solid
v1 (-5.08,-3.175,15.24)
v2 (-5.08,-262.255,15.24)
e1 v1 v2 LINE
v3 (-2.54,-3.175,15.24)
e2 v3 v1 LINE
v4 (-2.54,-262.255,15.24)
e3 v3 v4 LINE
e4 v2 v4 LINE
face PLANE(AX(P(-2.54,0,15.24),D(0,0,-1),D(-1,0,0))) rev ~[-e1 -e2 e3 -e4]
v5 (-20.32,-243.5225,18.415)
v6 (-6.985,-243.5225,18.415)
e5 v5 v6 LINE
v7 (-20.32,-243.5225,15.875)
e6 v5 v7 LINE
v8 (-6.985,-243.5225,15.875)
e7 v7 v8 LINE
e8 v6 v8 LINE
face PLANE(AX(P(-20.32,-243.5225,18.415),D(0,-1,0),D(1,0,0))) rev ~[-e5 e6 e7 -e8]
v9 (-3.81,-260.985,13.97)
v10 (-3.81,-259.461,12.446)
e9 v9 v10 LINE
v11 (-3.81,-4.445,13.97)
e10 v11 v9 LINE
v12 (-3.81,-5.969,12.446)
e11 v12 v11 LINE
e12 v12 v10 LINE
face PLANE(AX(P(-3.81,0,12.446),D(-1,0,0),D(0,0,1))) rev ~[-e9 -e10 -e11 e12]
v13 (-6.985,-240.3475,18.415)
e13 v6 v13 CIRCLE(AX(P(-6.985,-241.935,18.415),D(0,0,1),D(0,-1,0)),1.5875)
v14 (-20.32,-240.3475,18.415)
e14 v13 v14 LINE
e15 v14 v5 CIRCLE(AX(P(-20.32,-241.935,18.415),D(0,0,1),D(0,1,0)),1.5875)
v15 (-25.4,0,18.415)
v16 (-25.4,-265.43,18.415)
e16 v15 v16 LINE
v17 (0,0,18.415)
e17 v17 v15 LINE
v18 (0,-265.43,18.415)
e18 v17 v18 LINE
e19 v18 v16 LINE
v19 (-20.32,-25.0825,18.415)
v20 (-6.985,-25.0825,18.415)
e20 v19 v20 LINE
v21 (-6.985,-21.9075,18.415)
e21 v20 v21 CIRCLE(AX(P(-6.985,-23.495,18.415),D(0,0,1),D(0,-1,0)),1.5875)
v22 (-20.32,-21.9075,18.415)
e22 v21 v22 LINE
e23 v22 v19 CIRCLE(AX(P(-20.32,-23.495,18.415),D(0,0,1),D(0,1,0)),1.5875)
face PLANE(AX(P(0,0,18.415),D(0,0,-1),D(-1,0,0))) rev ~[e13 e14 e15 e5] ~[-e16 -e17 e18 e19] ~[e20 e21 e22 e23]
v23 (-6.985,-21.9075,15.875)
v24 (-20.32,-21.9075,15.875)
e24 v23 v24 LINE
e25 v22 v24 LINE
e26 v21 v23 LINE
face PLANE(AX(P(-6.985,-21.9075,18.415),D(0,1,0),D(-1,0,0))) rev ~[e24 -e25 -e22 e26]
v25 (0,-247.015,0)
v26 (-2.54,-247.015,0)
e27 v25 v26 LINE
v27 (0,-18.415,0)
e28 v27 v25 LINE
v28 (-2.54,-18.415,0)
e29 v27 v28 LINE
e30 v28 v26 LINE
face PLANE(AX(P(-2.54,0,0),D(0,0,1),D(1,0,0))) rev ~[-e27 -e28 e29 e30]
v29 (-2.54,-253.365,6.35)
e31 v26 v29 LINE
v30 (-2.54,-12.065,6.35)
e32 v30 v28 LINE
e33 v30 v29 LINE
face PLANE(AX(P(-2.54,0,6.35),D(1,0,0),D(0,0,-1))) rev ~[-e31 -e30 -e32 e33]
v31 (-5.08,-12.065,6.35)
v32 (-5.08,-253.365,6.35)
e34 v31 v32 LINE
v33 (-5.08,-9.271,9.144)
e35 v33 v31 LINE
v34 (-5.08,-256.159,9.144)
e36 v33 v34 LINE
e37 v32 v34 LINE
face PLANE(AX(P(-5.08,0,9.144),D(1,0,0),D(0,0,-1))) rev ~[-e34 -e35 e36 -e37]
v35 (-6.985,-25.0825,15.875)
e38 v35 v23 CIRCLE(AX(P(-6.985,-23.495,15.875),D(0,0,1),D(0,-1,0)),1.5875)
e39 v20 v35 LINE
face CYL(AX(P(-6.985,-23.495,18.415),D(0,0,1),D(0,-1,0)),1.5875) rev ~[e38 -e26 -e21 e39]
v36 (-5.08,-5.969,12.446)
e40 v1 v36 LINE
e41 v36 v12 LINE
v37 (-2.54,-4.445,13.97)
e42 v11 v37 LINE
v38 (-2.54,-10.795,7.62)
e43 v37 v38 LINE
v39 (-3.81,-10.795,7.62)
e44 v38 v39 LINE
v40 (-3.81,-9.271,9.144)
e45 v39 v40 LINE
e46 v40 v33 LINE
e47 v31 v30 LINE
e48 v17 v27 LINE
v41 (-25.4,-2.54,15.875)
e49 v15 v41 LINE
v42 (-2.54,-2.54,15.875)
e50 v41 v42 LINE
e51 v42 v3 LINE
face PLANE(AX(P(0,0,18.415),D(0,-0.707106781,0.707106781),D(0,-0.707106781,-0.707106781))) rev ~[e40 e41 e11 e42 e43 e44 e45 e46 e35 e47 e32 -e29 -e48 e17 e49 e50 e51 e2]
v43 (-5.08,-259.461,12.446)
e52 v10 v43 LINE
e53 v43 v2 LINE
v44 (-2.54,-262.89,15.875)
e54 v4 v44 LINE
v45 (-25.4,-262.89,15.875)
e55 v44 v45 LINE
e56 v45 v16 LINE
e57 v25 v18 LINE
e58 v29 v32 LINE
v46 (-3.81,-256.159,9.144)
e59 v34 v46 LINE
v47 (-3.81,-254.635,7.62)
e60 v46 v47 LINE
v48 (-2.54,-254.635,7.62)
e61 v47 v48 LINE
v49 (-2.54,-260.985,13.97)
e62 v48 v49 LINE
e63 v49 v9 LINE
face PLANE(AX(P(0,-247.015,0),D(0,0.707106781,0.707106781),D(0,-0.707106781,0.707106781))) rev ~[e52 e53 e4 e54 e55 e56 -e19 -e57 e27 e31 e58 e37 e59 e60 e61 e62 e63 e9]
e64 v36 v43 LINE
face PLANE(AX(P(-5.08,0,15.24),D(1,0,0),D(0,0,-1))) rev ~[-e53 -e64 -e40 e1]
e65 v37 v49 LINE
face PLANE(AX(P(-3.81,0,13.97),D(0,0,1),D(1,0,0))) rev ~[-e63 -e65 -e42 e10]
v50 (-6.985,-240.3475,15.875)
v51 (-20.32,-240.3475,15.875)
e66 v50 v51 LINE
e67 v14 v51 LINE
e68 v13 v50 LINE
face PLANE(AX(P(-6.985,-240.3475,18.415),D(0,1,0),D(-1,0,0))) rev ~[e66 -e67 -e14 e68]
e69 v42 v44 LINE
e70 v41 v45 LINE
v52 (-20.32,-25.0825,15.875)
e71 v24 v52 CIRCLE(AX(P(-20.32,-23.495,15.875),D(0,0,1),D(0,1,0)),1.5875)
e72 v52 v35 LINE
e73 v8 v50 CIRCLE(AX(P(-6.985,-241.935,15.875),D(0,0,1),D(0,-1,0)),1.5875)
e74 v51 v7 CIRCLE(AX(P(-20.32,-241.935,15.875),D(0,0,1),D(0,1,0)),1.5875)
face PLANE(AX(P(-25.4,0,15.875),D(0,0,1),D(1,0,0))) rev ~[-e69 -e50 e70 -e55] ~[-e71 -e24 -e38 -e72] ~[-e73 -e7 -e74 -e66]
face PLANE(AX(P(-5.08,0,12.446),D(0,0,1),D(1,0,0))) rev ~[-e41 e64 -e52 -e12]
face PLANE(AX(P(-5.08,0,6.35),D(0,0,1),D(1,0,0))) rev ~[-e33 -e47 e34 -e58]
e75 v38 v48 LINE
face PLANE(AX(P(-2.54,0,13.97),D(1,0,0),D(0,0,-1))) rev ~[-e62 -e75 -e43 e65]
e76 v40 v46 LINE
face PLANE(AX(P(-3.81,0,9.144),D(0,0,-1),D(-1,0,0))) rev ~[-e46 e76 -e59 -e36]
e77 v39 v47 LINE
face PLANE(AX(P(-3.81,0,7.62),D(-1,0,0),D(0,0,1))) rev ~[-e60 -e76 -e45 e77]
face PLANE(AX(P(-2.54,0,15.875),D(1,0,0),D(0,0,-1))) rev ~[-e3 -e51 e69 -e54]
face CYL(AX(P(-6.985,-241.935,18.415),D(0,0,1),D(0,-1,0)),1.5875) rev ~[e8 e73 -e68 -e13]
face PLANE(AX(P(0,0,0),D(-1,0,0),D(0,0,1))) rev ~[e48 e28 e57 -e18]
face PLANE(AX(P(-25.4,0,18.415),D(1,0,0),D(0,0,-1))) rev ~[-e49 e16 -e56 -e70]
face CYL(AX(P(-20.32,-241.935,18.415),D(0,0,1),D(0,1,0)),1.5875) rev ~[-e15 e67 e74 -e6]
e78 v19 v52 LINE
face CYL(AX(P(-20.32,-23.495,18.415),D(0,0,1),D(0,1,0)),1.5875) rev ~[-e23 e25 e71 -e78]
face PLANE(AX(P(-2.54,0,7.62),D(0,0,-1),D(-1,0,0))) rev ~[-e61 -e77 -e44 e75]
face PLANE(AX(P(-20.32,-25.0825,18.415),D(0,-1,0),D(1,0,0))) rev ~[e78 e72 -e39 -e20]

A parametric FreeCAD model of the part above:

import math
import FreeCAD as App
import Part
import Sketcher

V = App.Vector
Q = App.Units.Quantity


def add_polygon(sketch, points):
    """Adds a closed chain of lines whose ends are joined by coincident constraints."""
    first, n = sketch.GeometryCount, len(points)
    for a, b in zip(points, points[1:] + points[:1]):
        sketch.addGeometry(Part.LineSegment(App.Vector(*a, 0), App.Vector(*b, 0)), False)
    for i in range(n):
        sketch.addConstraint(Sketcher.Constraint("Coincident", first + i, 2, first + (i + 1) % n, 1))

doc = App.newDocument("Part")
body = doc.addObject("PartDesign::Body", "Body")

# Sketch on XZ plane
sketch1 = doc.addObject("Sketcher::SketchObject", "Sketch")
body.addObject(sketch1)
sketch1.AttachmentSupport = (doc.XZ_Plane, [""])
sketch1.MapMode = "FlatFace"
add_polygon(sketch1, [(-2.5, 0), (0, 0), (0, 18.4), (-25.4, 18.4), (-25.4, 15.9), (-2.5, 15.9), (-2.5, 15.2), (-5.1, 15.2), (-5.1, 12.4), (-3.8, 12.4), (-3.8, 14), (-2.5, 14), (-2.5, 7.6), (-3.8, 7.6), (-3.8, 9.1), (-5.1, 9.1), (-5.1, 6.3), (-2.5, 6.3)])  # lines 0-17
sketch1.addConstraint([
    Sketcher.Constraint("Horizontal", 0),
    Sketcher.Constraint("Vertical", 1),
    Sketcher.Constraint("Horizontal", 2),
    Sketcher.Constraint("Vertical", 3),
    Sketcher.Constraint("Horizontal", 4),
    Sketcher.Constraint("Vertical", 5),
    Sketcher.Constraint("Horizontal", 6),
    Sketcher.Constraint("Vertical", 7),
    Sketcher.Constraint("Horizontal", 8),
    Sketcher.Constraint("Vertical", 9),
    Sketcher.Constraint("Horizontal", 10),
    Sketcher.Constraint("Vertical", 11),
    Sketcher.Constraint("Horizontal", 12),
    Sketcher.Constraint("Vertical", 13),
    Sketcher.Constraint("Horizontal", 14),
    Sketcher.Constraint("Vertical", 15),
    Sketcher.Constraint("Horizontal", 16),
    Sketcher.Constraint("Vertical", 17),
    Sketcher.Constraint("Coincident", 0, 2, -1, 1),
    Sketcher.Constraint("Vertical", 5, 2, 10, 2),
    Sketcher.Constraint("Vertical", 9, 2, 12, 2),
    Sketcher.Constraint("Vertical", 7, 2, 14, 2),
    Sketcher.Constraint("Vertical", 11, 2, 16, 2),
    Sketcher.Constraint("Equal", 0, 6),
    Sketcher.Constraint("Equal", 8, 10),
    Sketcher.Constraint("Equal", 16, 3),
    Sketcher.Constraint("Equal", 9, 13),
    Sketcher.Constraint("Equal", 7, 15),
    Sketcher.Constraint("Equal", 11, 17),
    Sketcher.Constraint("DistanceX", 2, 2, 2, 1, Q("1 in")),
    Sketcher.Constraint("DistanceX", 0, 1, 0, 2, Q("0.1 in")),
    Sketcher.Constraint("DistanceY", 7, 2, 7, 1, Q("0.11 in")),
    Sketcher.Constraint("DistanceY", 9, 1, 9, 2, Q("0.06 in")),
    Sketcher.Constraint("DistanceY", 11, 2, 11, 1, Q("0.25 in")),
    Sketcher.Constraint("DistanceY", 1, 1, 1, 2, Q("0.725 in")),
])
pad1 = doc.addObject("PartDesign::Pad", "Pad")
body.addObject(pad1)
pad1.Profile = sketch1
pad1.Length = Q("10.45 in")

# Sketch on YZ plane
sketch2 = doc.addObject("Sketcher::SketchObject", "Sketch001")
body.addObject(sketch2)
sketch2.AttachmentSupport = (doc.YZ_Plane, [""])
sketch2.MapMode = "FlatFace"
add_polygon(sketch2, [(-247, 0), (-265, 18), (-265, 0)])  # lines 0-2
add_polygon(sketch2, [(0, 0), (0, 18), (-18, 0)])  # lines 3-5
sketch2.addConstraint([
    Sketcher.Constraint("Vertical", 1),
    Sketcher.Constraint("Horizontal", 2),
    Sketcher.Constraint("Vertical", 3),
    Sketcher.Constraint("Horizontal", 5),
    Sketcher.Constraint("Coincident", 5, 2, -1, 1),
    Sketcher.Constraint("PointOnObject", 1, 2, -1),
    Sketcher.Constraint("Perpendicular", 0, 4),
    Sketcher.Constraint("Horizontal", 0, 2, 3, 2),
    Sketcher.Constraint("Equal", 2, 5),
    Sketcher.Constraint("DistanceX", 2, 2, 4, 2, Q("9 in")),
    Sketcher.Constraint("DistanceX", 2, 1, 2, 2, Q("0.725 in")),
])
pocket1 = doc.addObject("PartDesign::Pocket", "Pocket")
body.addObject(pocket1)
pocket1.Profile = sketch2
pocket1.Length = Q("1 in")

# Sketch on XY plane
sketch3 = doc.addObject("Sketcher::SketchObject", "Sketch002")
body.addObject(sketch3)
sketch3.AttachmentSupport = (doc.XY_Plane, [""])
sketch3.MapMode = "FlatFace"
sketch3.AttachmentOffset = App.Placement(V(0, 0, 0.725 * 25.4), App.Rotation())
sketch3.addGeometry([
    Part.LineSegment(V(-7, -240.3, 0), V(-20.3, -240.3, 0)),  # 0
    Part.ArcOfCircle(Part.Circle(V(-20.3, -241.9, 0), V(0, 0, 1), 1.6), math.radians(90), math.radians(270)),  # 1
    Part.LineSegment(V(-20.3, -243.5, 0), V(-7, -243.5, 0)),  # 2
    Part.ArcOfCircle(Part.Circle(V(-7, -241.9, 0), V(0, 0, 1), 1.6), math.radians(-90), math.radians(90)),  # 3
    Part.ArcOfCircle(Part.Circle(V(-20.3, -23.5, 0), V(0, 0, 1), 1.6), math.radians(90), math.radians(270)),  # 4
    Part.LineSegment(V(-20.3, -25.1, 0), V(-7, -25.1, 0)),  # 5
    Part.ArcOfCircle(Part.Circle(V(-7, -23.5, 0), V(0, 0, 1), 1.6), math.radians(-90), math.radians(90)),  # 6
    Part.LineSegment(V(-7, -21.9, 0), V(-20.3, -21.9, 0)),  # 7
], False)
sketch3.addConstraint([
    Sketcher.Constraint("Tangent", 0, 2, 1, 1),
    Sketcher.Constraint("Tangent", 1, 2, 2, 1),
    Sketcher.Constraint("Tangent", 2, 2, 3, 1),
    Sketcher.Constraint("Tangent", 3, 2, 0, 1),
    Sketcher.Constraint("Tangent", 4, 2, 5, 1),
    Sketcher.Constraint("Tangent", 5, 2, 6, 1),
    Sketcher.Constraint("Tangent", 6, 2, 7, 1),
    Sketcher.Constraint("Tangent", 7, 2, 4, 1),
    Sketcher.Constraint("Horizontal", 0),
    Sketcher.Constraint("Horizontal", 2),
    Sketcher.Constraint("Horizontal", 5),
    Sketcher.Constraint("Horizontal", 7),
    Sketcher.Constraint("Equal", 3, 4),
    Sketcher.Constraint("Vertical", 1, 3, 4, 3),
    Sketcher.Constraint("Vertical", 3, 3, 6, 3),
    Sketcher.Constraint("Radius", 1, Q("0.0625 in")),
    Sketcher.Constraint("DistanceX", 1, 3, -1, 1, Q("0.8 in")),
    Sketcher.Constraint("DistanceY", 1, 3, 4, 3, Q("8.6 in")),
    Sketcher.Constraint("DistanceX", 0, 2, 0, 1, Q("0.525 in")),
    Sketcher.Constraint("DistanceY", 1, 3, -1, 1, Q("9.525 in")),
])
pocket2 = doc.addObject("PartDesign::Pocket", "Pocket001")
body.addObject(pocket2)
pocket2.Profile = sketch3
pocket2.Length = Q("0.1 in")

doc.recompute()
